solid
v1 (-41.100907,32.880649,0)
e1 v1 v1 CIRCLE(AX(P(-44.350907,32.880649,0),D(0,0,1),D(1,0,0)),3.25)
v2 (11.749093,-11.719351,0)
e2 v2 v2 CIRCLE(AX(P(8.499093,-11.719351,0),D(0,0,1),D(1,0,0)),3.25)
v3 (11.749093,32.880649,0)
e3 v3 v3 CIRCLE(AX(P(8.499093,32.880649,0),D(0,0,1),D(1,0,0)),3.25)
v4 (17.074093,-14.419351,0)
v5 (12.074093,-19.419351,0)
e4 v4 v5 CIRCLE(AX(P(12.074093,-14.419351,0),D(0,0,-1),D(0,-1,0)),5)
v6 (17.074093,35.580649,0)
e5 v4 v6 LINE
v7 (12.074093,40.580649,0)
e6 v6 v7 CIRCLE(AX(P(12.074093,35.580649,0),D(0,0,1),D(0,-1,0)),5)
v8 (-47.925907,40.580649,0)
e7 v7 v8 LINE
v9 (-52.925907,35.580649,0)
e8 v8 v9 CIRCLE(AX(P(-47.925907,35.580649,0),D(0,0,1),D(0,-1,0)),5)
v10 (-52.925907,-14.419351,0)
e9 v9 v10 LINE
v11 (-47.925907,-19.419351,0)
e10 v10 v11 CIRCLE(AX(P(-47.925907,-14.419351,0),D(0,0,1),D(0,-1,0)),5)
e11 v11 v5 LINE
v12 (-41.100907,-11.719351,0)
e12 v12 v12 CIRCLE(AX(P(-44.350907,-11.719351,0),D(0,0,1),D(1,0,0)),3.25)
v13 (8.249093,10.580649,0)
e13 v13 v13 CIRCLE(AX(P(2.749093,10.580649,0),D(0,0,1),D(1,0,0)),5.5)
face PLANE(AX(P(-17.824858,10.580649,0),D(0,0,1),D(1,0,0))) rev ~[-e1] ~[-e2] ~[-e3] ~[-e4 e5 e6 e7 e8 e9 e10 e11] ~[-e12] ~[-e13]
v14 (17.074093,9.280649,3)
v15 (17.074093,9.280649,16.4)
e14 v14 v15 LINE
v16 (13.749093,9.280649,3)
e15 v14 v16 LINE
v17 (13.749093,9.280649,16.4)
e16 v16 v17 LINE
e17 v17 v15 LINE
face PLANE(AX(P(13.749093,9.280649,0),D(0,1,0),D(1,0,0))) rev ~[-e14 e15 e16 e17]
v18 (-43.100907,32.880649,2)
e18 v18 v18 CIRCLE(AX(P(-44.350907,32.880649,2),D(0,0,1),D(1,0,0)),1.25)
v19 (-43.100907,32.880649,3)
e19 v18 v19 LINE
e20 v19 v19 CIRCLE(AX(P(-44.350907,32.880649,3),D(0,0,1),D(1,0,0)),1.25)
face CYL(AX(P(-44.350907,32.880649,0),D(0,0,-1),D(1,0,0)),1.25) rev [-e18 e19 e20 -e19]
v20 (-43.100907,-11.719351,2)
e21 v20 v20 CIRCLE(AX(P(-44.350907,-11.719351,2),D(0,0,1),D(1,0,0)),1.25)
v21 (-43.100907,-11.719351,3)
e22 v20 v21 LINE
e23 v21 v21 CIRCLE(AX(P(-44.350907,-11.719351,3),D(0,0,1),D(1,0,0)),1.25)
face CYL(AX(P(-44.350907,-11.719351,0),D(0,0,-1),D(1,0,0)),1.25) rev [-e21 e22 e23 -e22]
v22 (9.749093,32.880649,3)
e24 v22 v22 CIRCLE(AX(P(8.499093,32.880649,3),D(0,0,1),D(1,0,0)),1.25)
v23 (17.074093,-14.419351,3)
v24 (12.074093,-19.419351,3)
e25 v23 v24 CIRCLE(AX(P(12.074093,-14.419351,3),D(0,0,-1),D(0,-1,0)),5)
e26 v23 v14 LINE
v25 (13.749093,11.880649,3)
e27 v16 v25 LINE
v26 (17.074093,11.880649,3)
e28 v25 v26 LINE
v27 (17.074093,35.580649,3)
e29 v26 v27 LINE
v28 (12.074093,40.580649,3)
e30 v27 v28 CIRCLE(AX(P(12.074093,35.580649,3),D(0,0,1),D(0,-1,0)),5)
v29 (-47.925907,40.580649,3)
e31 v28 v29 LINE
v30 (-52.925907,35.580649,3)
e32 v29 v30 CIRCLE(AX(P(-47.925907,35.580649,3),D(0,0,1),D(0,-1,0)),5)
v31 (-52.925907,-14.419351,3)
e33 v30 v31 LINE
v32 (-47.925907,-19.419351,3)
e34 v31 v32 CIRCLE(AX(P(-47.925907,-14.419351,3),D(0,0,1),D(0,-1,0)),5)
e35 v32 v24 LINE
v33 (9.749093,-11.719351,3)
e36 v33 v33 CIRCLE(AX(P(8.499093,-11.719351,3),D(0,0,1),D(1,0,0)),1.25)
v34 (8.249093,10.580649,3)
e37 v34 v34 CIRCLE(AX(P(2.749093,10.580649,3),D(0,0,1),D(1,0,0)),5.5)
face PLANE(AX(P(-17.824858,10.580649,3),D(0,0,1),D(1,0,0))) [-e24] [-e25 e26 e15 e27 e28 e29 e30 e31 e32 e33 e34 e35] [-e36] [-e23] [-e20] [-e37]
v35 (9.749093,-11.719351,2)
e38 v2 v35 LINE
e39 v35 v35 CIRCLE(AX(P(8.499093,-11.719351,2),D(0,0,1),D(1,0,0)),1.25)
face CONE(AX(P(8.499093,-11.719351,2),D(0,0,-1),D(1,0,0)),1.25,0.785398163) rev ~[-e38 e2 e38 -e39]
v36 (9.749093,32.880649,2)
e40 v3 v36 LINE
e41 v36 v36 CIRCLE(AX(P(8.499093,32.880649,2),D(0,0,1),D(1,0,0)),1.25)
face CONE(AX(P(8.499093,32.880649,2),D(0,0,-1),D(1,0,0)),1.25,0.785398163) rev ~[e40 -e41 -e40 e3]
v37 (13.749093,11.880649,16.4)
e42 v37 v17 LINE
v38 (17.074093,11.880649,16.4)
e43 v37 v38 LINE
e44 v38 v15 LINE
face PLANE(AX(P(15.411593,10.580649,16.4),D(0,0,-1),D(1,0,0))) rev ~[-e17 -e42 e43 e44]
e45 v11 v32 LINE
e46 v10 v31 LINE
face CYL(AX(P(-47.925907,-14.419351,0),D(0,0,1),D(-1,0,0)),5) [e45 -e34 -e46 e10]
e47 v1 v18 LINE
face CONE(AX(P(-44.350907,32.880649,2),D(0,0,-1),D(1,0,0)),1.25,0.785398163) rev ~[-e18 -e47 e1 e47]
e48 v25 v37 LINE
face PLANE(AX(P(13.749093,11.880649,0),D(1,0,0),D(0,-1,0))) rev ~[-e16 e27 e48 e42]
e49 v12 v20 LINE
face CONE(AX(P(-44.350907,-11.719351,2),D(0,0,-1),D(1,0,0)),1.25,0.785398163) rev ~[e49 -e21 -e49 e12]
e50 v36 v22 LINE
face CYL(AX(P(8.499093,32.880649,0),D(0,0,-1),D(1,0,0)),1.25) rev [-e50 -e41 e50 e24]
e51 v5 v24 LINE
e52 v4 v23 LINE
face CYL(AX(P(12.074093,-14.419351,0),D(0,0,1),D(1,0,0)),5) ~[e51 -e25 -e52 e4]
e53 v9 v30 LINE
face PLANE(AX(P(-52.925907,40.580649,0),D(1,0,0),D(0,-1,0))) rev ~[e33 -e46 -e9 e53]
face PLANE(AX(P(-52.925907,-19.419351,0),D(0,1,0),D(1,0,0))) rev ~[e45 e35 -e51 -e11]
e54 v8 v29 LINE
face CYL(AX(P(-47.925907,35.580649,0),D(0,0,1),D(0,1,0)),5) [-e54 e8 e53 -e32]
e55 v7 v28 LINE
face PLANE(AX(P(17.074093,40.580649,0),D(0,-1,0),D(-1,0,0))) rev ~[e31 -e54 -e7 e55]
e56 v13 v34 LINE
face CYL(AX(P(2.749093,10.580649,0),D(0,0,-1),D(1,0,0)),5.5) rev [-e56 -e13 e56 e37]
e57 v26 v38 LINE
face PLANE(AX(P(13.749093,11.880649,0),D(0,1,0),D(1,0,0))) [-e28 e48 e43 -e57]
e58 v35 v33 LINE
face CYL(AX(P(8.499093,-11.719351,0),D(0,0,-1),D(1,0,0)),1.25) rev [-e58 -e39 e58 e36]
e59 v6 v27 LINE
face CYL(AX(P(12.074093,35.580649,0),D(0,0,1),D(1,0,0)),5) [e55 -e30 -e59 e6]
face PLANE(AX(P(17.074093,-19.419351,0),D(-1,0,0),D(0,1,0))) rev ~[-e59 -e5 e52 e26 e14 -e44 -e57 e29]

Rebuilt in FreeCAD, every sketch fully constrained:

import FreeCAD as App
import Part
import Sketcher
from FreeCAD import Vector


def edges_at(feature, points):
    """Names of the edges that pass closest to the given points."""
    edges = feature.Shape.Edges
    near = lambda p: min(range(len(edges)), key=lambda i: edges[i].distToShape(Part.Vertex(*p))[0])
    return sorted({f"Edge{near(p) + 1}" for p in points})

doc = App.newDocument("Part")
body = doc.addObject("PartDesign::Body", "Body")

sketch1 = body.newObject("Sketcher::SketchObject", "Sketch")
sketch1.AttachmentSupport = (doc.getObject("XY_Plane"), [""])
sketch1.MapMode = "FlatFace"
sketch1.addGeometry([
    Part.LineSegment(Vector(17.1, -19.4, 0), Vector(17.1, 9.3, 0)),
    Part.LineSegment(Vector(17.1, 9.3, 0), Vector(13.7, 9.3, 0)),
    Part.LineSegment(Vector(13.7, 9.3, 0), Vector(13.7, 11.9, 0)),
    Part.LineSegment(Vector(13.7, 11.9, 0), Vector(17.1, 11.9, 0)),
    Part.LineSegment(Vector(17.1, 11.9, 0), Vector(17.1, 40.6, 0)),
    Part.LineSegment(Vector(17.1, 40.6, 0), Vector(-52.9, 40.6, 0)),
    Part.LineSegment(Vector(-52.9, 40.6, 0), Vector(-52.9, -19.4, 0)),
    Part.LineSegment(Vector(-52.9, -19.4, 0), Vector(17.1, -19.4, 0)),
    Part.Circle(Vector(-44.4, -11.7, 0), Vector(0, 0, 1), 1.2),
    Part.Circle(Vector(8.5, -11.7, 0), Vector(0, 0, 1), 1.2),
    Part.Circle(Vector(-44.4, 32.9, 0), Vector(0, 0, 1), 1.2),
    Part.Circle(Vector(2.7, 10.6, 0), Vector(0, 0, 1), 5.5),
    Part.Circle(Vector(8.5, 32.9, 0), Vector(0, 0, 1), 1.2),
], False)
sketch1.addConstraint([
    Sketcher.Constraint("Coincident", 0, 2, 1, 1),
    Sketcher.Constraint("Coincident", 1, 2, 2, 1),
    Sketcher.Constraint("Coincident", 2, 2, 3, 1),
    Sketcher.Constraint("Coincident", 3, 2, 4, 1),
    Sketcher.Constraint("Coincident", 4, 2, 5, 1),
    Sketcher.Constraint("Coincident", 5, 2, 6, 1),
    Sketcher.Constraint("Coincident", 6, 2, 7, 1),
    Sketcher.Constraint("Coincident", 7, 2, 0, 1),
    Sketcher.Constraint("Vertical", 0),
    Sketcher.Constraint("Horizontal", 1),
    Sketcher.Constraint("Vertical", 2),
    Sketcher.Constraint("Horizontal", 3),
    Sketcher.Constraint("Vertical", 4),
    Sketcher.Constraint("Horizontal", 5),
    Sketcher.Constraint("Vertical", 6),
    Sketcher.Constraint("Horizontal", 7),
    Sketcher.Constraint("Equal", 8, 9),
    Sketcher.Constraint("Equal", 9, 10),
    Sketcher.Constraint("Equal", 10, 12),
    Sketcher.Constraint("Horizontal", 8, 3, 9, 3),
    Sketcher.Constraint("Horizontal", 10, 3, 12, 3),
    Sketcher.Constraint("Vertical", 8, 3, 10, 3),
    Sketcher.Constraint("Vertical", 9, 3, 12, 3),
    Sketcher.Constraint("Vertical", 0, 2, 3, 2),
    Sketcher.Constraint("Equal", 0, 4),
    Sketcher.Constraint("Diameter", 11, 11.0),
    Sketcher.Constraint("Diameter", 8, 2.5),
    Sketcher.Constraint("DistanceX", 5, 2, 5, 1, 70.0),
    Sketcher.Constraint("DistanceY", 6, 2, 6, 1, 60.0),
    Sketcher.Constraint("DistanceY", 0, 1, 0, 2, 28.7),
    Sketcher.Constraint("DistanceY", 9, 3, 0, 2, 21.0),
    Sketcher.Constraint("DistanceX", 11, 3, 1, 2, 11.0),
    Sketcher.Constraint("DistanceY", 2, 2, 12, 3, 21.0),
    Sketcher.Constraint("DistanceY", 11, 3, 5, 2, 30.0),
    Sketcher.Constraint("DistanceX", 8, 3, 11, 3, 47.1),
    Sketcher.Constraint("DistanceX", 1, 2, 1, 1, 3.325),
    Sketcher.Constraint("DistanceX", 8, 3, 9, 3, 52.85),
    Sketcher.Constraint("DistanceY", 8, 3, -1, 1, 11.719351),
    Sketcher.Constraint("DistanceX", 8, 3, -1, 1, 44.350907),
])
pad1 = body.newObject("PartDesign::Pad", "Pad")
pad1.Profile = sketch1
pad1.Length = 3

sketch2 = body.newObject("Sketcher::SketchObject", "Sketch001")
sketch2.AttachmentSupport = (doc.getObject("XY_Plane"), [""])
sketch2.MapMode = "FlatFace"
sketch2.addGeometry([
    Part.LineSegment(Vector(13.7, 9.3, 0), Vector(13.7, 11.9, 0)),
    Part.LineSegment(Vector(13.7, 11.9, 0), Vector(17.1, 11.9, 0)),
    Part.LineSegment(Vector(17.1, 11.9, 0), Vector(17.1, 9.3, 0)),
    Part.LineSegment(Vector(17.1, 9.3, 0), Vector(13.7, 9.3, 0)),
], False)
sketch2.addConstraint([
    Sketcher.Constraint("Coincident", 0, 2, 1, 1),
    Sketcher.Constraint("Coincident", 1, 2, 2, 1),
    Sketcher.Constraint("Coincident", 2, 2, 3, 1),
    Sketcher.Constraint("Coincident", 3, 2, 0, 1),
    Sketcher.Constraint("Vertical", 0),
    Sketcher.Constraint("Horizontal", 1),
    Sketcher.Constraint("Vertical", 2),
    Sketcher.Constraint("Horizontal", 3),
    Sketcher.Constraint("DistanceY", 0, 1, 0, 2, 2.6),
    Sketcher.Constraint("DistanceX", 1, 1, 1, 2, 3.325),
    Sketcher.Constraint("DistanceY", -1, 1, 0, 2, 11.880649),
    Sketcher.Constraint("DistanceX", -1, 1, 0, 2, 13.749093),
])
pad2 = body.newObject("PartDesign::Pad", "Pad001")
pad2.Profile = sketch2
pad2.Length = 16.4
doc.recompute()

chamfer = body.newObject("PartDesign::Chamfer", "Chamfer")
chamfer.Base = (pad2, edges_at(pad2, [
    (-45.601, -11.719, 0),
    (-45.601, 32.881, 0),
    (7.249, 32.881, 0),
    (7.249, -11.719, 0),
]))
chamfer.Size = 2
doc.recompute()

fillet = body.newObject("PartDesign::Fillet", "Fillet")
fillet.Base = (chamfer, edges_at(chamfer, [
    (-52.926, -19.419, 1.5),
    (17.074, -19.419, 1.5),
    (17.074, 40.581, 1.5),
    (-52.926, 40.581, 1.5),
]))
fillet.Radius = 5

doc.recompute()
